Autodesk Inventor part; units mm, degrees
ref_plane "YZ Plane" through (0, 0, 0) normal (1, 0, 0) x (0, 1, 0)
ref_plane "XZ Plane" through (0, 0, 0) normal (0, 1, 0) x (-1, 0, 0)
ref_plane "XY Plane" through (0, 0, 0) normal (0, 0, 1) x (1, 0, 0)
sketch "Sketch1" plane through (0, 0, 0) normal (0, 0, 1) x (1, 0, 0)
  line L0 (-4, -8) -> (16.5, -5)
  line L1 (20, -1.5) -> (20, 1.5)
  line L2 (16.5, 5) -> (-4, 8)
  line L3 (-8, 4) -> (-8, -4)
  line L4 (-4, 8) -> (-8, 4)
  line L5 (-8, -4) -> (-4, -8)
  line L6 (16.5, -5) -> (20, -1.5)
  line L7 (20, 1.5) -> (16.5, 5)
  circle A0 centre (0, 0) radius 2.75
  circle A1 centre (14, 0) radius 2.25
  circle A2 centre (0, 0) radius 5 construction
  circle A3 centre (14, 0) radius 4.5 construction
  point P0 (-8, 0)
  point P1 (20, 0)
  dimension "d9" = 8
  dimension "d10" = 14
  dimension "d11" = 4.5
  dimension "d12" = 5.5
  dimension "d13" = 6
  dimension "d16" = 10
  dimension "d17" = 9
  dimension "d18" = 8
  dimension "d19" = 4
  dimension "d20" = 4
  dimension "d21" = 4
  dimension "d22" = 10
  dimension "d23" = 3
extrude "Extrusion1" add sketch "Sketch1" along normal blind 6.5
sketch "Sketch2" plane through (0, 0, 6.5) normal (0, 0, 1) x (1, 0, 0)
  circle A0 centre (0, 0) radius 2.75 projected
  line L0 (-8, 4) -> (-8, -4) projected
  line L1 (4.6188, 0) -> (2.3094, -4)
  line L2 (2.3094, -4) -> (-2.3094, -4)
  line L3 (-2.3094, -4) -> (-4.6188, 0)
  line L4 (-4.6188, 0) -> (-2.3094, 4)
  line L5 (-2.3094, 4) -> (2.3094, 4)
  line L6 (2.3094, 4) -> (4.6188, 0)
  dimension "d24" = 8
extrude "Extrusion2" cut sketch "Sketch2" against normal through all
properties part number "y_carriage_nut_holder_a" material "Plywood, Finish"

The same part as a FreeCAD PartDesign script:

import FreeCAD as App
import Part
import Sketcher

V = App.Vector
Q = App.Units.Quantity

doc = App.newDocument("Part")
params = doc.addObject("Spreadsheet::Sheet", "Params")
for row, (alias, value) in enumerate([
    ("sketch1_diameter", "5.5 mm"),
    ("sketch1_diameter2", "4.5 mm"),
    ("sketch1_height", "3 mm"),
    ("sketch1_height2", "8 mm"),
    ("pad1_length", "6.5 mm"),
    ("sketch2_diameter", "5.5 mm"),
], start=1):
    params.set(f"A{row}", alias)
    params.set(f"B{row}", "=" + value)
    params.setAlias(f"B{row}", alias)

body = doc.addObject("PartDesign::Body", "Body")

# Sketch on XY plane
sketch1 = body.newObject("Sketcher::SketchObject", "Sketch")
sketch1.AttachmentSupport = (doc.getObject("XY_Plane"), [""])
sketch1.MapMode = "FlatFace"
sketch1.addGeometry(Part.LineSegment(V(-8, -4, 0), V(-4, -8, 0)), False)
sketch1.addGeometry(Part.LineSegment(V(-4, -8, 0), V(16.5, -5, 0)), False)
sketch1.addGeometry(Part.LineSegment(V(16.5, -5, 0), V(20, -1.5, 0)), False)
sketch1.addGeometry(Part.LineSegment(V(20, -1.5, 0), V(20, 1.5, 0)), False)
sketch1.addGeometry(Part.LineSegment(V(20, 1.5, 0), V(16.5, 5, 0)), False)
sketch1.addGeometry(Part.LineSegment(V(16.5, 5, 0), V(-4, 8, 0)), False)
sketch1.addGeometry(Part.LineSegment(V(-4, 8, 0), V(-8, 4, 0)), False)
sketch1.addGeometry(Part.LineSegment(V(-8, 4, 0), V(-8, -4, 0)), False)
sketch1.addGeometry(Part.Circle(V(0, 0, 0), V(0, 0, 1), 2.8), False)
sketch1.addGeometry(Part.Circle(V(14, 0, 0), V(0, 0, 1), 2.2), False)
sketch1.addConstraint(Sketcher.Constraint("Coincident", 0, 2, 1, 1))
sketch1.addConstraint(Sketcher.Constraint("Coincident", 1, 2, 2, 1))
sketch1.addConstraint(Sketcher.Constraint("Coincident", 2, 2, 3, 1))
sketch1.addConstraint(Sketcher.Constraint("Coincident", 3, 2, 4, 1))
sketch1.addConstraint(Sketcher.Constraint("Coincident", 4, 2, 5, 1))
sketch1.addConstraint(Sketcher.Constraint("Coincident", 5, 2, 6, 1))
sketch1.addConstraint(Sketcher.Constraint("Coincident", 6, 2, 7, 1))
sketch1.addConstraint(Sketcher.Constraint("Coincident", 7, 2, 0, 1))
sketch1.addConstraint(Sketcher.Constraint("Vertical", 3))
sketch1.addConstraint(Sketcher.Constraint("Vertical", 7))
sketch1.addConstraint(Sketcher.Constraint("Coincident", 8, 3, -1, 1))
sketch1.addConstraint(Sketcher.Constraint("Symmetric", 1, 2, 4, 2, -1))
sketch1.addConstraint(Sketcher.Constraint("Symmetric", 0, 2, 5, 2, -1))
sketch1.addConstraint(Sketcher.Constraint("PointOnObject", 9, 3, -1))
sketch1.addConstraint(Sketcher.Constraint("Perpendicular", 0, 2))
sketch1.addConstraint(Sketcher.Constraint("Perpendicular", 2, 4))
sketch1.addConstraint(Sketcher.Constraint("Perpendicular", 4, 6))
sketch1.addConstraint(Sketcher.Constraint("Equal", 2, 4))
sketch1.addConstraint(Sketcher.Constraint("Diameter", 8, Q("5.5 mm")))
sketch1.addConstraint(Sketcher.Constraint("Diameter", 9, Q("4.5 mm")))
sketch1.addConstraint(Sketcher.Constraint("DistanceY", 3, 1, 3, 2, Q("3 mm")))
sketch1.addConstraint(Sketcher.Constraint("DistanceY", 7, 2, 7, 1, Q("8 mm")))
sketch1.addConstraint(Sketcher.Constraint("DistanceX", -1, 1, 9, 3, Q("14 mm")))
sketch1.addConstraint(Sketcher.Constraint("DistanceX", 0, 2, -1, 1, Q("4 mm")))
sketch1.addConstraint(Sketcher.Constraint("DistanceY", 0, 2, -1, 1, Q("8 mm")))
sketch1.addConstraint(Sketcher.Constraint("DistanceY", 0, 2, 1, 2, Q("3 mm")))
sketch1.addConstraint(Sketcher.Constraint("DistanceX", 9, 3, 2, 2, Q("6 mm")))
sketch1.setExpression("Constraints[18]", "Params.sketch1_diameter")
sketch1.setExpression("Constraints[19]", "Params.sketch1_diameter2")
sketch1.setExpression("Constraints[20]", "Params.sketch1_height")
sketch1.setExpression("Constraints[21]", "Params.sketch1_height2")
pad1 = body.newObject("PartDesign::Pad", "Pad")
pad1.Profile = sketch1
pad1.setExpression("Length", "Params.pad1_length")

# Sketch on XY plane
sketch2 = body.newObject("Sketcher::SketchObject", "Sketch001")
sketch2.AttachmentSupport = (doc.getObject("XY_Plane"), [""])
sketch2.MapMode = "FlatFace"
sketch2.AttachmentOffset = App.Placement(V(0, 0, 6.5), App.Rotation())
sketch2.addGeometry(Part.LineSegment(V(2.3, -4, 0), V(4.6, 0, 0)), False)
sketch2.addGeometry(Part.LineSegment(V(4.6, 0, 0), V(2.3, 4, 0)), False)
sketch2.addGeometry(Part.LineSegment(V(2.3, 4, 0), V(-2.3, 4, 0)), False)
sketch2.addGeometry(Part.LineSegment(V(-2.3, 4, 0), V(-4.6, 0, 0)), False)
sketch2.addGeometry(Part.LineSegment(V(-4.6, 0, 0), V(-2.3, -4, 0)), False)
sketch2.addGeometry(Part.LineSegment(V(-2.3, -4, 0), V(2.3, -4, 0)), False)
sketch2.addGeometry(Part.Circle(V(0, 0, 0), V(0, 0, 1), 2.8), False)
sketch2.addConstraint(Sketcher.Constraint("Coincident", 0, 2, 1, 1))
sketch2.addConstraint(Sketcher.Constraint("Coincident", 1, 2, 2, 1))
sketch2.addConstraint(Sketcher.Constraint("Coincident", 2, 2, 3, 1))
sketch2.addConstraint(Sketcher.Constraint("Coincident", 3, 2, 4, 1))
sketch2.addConstraint(Sketcher.Constraint("Coincident", 4, 2, 5, 1))
sketch2.addConstraint(Sketcher.Constraint("Coincident", 5, 2, 0, 1))
sketch2.addConstraint(Sketcher.Constraint("Horizontal", 2))
sketch2.addConstraint(Sketcher.Constraint("Horizontal", 5))
sketch2.addConstraint(Sketcher.Constraint("Coincident", 6, 3, -1, 1))
sketch2.addConstraint(Sketcher.Constraint("Symmetric", 0, 2, 3, 2, -1, 1))
sketch2.addConstraint(Sketcher.Constraint("Symmetric", 1, 2, 4, 2, -1, 1))
sketch2.addConstraint(Sketcher.Constraint("PointOnObject", 0, 2, -1))
sketch2.addConstraint(Sketcher.Constraint("Parallel", 0, 3))
sketch2.addConstraint(Sketcher.Constraint("Vertical", 2, 2, 4, 2))
sketch2.addConstraint(Sketcher.Constraint("DistanceY", 4, 2, 2, 2, Q("8 mm")))
sketch2.addConstraint(Sketcher.Constraint("Diameter", 6, Q("5.5 mm")))
sketch2.addConstraint(Sketcher.Constraint("Angle", 0, Q("60 deg")))
sketch2.addConstraint(Sketcher.Constraint("DistanceX", 2, 2, 2, 1, Q("4.6188 mm")))
sketch2.setExpression("Constraints[15]", "Params.sketch2_diameter")
pocket1 = body.newObject("PartDesign::Pocket", "Pocket")
pocket1.Profile = sketch2
pocket1.Type = "ThroughAll"

doc.recompute()
